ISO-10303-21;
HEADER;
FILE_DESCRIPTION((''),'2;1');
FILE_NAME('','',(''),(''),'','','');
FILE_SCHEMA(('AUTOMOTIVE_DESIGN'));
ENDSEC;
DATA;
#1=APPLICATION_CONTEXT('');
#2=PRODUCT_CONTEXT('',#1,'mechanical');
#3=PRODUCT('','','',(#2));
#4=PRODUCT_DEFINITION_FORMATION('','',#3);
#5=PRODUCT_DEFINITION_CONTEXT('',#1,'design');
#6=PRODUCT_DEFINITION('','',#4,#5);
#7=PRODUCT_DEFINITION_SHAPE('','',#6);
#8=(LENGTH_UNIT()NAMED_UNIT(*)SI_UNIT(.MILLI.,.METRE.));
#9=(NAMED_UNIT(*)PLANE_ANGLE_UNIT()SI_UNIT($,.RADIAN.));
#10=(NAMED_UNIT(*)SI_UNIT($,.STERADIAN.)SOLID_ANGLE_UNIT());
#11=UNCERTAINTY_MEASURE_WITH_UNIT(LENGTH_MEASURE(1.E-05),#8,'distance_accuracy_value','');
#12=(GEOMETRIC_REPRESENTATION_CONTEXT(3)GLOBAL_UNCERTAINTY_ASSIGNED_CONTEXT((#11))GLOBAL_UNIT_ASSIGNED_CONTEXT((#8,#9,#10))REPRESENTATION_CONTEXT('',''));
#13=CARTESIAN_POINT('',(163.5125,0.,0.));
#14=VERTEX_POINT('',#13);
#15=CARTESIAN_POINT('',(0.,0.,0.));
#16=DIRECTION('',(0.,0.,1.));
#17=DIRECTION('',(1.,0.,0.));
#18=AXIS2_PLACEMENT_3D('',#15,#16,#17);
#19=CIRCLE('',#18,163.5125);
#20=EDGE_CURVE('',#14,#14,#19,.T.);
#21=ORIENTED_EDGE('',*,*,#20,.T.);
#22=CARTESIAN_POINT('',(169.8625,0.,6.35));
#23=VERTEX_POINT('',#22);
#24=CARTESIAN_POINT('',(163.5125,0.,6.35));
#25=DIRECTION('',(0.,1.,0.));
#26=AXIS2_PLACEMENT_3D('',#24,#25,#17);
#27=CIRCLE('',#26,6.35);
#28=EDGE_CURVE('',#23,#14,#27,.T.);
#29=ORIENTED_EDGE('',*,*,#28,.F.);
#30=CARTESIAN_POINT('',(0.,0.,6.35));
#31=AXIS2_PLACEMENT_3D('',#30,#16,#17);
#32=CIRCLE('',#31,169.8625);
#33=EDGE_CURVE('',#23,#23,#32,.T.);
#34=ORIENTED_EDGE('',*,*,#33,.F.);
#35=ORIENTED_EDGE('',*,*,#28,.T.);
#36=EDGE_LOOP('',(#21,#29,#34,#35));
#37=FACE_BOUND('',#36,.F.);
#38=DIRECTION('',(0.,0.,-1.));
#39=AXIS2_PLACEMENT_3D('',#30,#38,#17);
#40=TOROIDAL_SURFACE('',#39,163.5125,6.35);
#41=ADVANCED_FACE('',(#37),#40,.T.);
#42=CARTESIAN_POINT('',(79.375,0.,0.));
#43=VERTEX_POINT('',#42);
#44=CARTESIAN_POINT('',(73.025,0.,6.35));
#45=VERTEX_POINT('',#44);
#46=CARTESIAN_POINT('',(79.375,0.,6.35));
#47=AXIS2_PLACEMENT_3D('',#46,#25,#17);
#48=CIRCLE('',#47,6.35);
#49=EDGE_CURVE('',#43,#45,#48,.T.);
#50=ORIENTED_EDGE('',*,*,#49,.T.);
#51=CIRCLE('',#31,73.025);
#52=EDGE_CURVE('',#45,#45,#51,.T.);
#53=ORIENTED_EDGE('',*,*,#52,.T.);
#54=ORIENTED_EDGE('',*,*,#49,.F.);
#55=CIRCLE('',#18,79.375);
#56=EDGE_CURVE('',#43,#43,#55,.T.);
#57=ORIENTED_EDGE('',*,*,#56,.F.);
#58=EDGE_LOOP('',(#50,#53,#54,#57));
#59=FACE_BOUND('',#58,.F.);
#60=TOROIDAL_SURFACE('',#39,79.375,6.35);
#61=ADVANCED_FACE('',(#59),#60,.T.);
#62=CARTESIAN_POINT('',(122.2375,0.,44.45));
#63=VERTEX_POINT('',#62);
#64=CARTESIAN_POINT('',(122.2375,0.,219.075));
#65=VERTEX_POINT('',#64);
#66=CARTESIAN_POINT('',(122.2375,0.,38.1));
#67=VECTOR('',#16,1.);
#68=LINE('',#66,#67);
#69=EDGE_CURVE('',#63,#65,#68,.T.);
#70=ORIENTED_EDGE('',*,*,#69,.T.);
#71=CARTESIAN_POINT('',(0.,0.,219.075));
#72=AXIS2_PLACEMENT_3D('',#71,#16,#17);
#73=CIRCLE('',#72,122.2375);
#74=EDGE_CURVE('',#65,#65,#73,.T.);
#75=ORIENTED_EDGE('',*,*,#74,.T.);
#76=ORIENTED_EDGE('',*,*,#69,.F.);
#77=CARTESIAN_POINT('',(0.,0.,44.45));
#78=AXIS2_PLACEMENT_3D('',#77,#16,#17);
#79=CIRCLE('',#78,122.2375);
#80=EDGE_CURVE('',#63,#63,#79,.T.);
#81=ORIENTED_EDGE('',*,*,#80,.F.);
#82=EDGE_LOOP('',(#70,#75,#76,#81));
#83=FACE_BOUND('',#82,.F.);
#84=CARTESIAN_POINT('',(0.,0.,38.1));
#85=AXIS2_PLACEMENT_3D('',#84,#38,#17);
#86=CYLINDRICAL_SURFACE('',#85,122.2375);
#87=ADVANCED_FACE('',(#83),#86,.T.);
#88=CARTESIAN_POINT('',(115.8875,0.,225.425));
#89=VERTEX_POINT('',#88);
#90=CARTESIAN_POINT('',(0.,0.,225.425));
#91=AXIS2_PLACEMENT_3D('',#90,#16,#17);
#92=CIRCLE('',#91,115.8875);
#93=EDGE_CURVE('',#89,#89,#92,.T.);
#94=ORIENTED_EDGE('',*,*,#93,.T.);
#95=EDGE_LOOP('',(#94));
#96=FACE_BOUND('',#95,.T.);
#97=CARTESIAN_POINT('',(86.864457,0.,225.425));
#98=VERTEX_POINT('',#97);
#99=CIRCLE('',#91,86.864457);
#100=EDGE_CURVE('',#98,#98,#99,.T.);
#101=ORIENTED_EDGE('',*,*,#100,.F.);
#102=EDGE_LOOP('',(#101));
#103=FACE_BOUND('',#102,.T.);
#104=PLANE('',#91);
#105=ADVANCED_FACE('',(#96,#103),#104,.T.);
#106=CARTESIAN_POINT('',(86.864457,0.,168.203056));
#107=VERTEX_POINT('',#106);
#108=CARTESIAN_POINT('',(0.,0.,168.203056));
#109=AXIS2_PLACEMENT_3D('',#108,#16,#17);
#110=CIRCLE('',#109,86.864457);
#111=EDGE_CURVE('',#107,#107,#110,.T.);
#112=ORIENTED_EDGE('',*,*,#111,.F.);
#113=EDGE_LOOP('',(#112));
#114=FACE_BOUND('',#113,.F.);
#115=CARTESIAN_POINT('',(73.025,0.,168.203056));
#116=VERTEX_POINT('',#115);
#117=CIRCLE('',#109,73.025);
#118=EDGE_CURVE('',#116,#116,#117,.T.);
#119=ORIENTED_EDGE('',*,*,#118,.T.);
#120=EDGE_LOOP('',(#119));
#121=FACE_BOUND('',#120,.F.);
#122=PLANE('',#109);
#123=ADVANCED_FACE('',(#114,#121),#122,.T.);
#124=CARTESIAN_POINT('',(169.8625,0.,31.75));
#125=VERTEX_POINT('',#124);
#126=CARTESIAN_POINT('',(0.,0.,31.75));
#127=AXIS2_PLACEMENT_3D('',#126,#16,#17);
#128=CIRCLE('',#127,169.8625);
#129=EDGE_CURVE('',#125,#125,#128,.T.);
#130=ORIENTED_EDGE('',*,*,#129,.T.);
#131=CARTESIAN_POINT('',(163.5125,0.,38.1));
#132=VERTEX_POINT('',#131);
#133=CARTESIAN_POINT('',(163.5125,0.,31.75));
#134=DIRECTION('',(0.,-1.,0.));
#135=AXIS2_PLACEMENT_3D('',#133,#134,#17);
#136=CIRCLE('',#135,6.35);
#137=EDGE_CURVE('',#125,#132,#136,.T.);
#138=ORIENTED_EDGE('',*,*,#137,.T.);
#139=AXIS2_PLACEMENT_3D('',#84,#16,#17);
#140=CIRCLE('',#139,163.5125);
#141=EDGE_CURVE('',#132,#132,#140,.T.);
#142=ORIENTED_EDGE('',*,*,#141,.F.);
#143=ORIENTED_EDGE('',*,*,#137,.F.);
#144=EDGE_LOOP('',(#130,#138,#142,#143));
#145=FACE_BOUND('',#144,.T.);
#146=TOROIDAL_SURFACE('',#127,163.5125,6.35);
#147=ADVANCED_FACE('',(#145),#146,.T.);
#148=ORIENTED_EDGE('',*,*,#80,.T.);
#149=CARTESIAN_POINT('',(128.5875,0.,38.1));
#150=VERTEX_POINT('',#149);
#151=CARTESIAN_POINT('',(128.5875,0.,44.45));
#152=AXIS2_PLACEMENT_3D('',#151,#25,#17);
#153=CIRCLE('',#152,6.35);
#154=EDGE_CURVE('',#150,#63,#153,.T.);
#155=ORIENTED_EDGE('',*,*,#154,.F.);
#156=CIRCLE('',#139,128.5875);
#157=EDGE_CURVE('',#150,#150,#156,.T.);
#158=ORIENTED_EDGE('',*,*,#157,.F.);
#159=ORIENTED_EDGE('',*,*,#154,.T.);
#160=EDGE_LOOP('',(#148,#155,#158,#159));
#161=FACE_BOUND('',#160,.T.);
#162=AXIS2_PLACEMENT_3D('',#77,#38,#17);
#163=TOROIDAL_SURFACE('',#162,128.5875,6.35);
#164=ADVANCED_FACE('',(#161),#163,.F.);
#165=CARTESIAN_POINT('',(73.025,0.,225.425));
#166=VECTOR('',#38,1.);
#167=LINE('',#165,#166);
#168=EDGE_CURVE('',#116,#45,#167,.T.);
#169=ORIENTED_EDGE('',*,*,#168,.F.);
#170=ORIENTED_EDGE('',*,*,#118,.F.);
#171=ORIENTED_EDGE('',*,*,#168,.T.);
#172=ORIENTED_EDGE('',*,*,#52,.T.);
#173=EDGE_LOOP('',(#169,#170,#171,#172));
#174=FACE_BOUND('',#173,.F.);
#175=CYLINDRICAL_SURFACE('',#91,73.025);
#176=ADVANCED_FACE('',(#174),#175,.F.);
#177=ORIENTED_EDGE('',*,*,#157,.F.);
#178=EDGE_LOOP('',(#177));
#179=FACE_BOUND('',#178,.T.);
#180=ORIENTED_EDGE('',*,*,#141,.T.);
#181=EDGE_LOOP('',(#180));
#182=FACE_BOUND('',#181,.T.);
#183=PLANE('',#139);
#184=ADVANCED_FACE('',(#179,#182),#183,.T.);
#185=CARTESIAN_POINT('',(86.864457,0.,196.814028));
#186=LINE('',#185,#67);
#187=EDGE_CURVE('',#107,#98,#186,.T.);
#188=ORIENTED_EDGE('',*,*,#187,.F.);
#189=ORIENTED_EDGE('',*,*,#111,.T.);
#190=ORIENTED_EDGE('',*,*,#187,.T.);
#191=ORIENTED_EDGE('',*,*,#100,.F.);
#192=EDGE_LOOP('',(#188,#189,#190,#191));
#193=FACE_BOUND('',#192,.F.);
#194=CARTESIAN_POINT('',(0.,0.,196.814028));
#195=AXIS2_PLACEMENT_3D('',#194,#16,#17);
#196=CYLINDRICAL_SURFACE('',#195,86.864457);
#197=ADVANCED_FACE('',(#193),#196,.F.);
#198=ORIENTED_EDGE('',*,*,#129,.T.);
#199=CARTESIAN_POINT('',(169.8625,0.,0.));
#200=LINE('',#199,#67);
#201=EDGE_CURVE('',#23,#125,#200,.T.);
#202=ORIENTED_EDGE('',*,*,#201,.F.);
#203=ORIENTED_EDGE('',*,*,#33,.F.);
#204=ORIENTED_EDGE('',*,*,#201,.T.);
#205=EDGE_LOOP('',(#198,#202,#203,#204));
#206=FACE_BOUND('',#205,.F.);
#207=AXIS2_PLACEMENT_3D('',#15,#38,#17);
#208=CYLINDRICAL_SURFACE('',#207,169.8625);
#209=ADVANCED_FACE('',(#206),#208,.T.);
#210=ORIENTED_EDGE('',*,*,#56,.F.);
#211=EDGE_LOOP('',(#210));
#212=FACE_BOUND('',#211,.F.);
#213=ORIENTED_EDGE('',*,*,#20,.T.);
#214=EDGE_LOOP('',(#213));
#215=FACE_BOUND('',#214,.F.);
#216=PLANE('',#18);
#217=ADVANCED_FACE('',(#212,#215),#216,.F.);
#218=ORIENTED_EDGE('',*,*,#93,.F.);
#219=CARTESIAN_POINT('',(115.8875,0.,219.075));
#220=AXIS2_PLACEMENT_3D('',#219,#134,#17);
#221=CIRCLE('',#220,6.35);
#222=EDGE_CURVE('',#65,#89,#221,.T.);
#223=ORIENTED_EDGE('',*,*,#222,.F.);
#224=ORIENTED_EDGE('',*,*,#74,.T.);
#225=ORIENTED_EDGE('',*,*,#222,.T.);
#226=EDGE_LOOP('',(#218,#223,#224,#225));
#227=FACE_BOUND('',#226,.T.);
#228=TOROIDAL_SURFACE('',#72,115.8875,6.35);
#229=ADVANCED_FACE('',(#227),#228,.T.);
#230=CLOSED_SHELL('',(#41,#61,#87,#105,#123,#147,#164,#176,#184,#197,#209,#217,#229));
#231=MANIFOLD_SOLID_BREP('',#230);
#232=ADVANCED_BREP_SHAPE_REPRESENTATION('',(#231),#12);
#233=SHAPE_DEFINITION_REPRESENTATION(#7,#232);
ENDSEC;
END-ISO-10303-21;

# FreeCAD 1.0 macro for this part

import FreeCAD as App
import Part
import Sketcher
from FreeCAD import Vector
Q = App.Units.Quantity


def edges_at(feature, points):
    """Names of the edges that pass closest to the given points."""
    edges = feature.Shape.Edges
    near = lambda p: min(range(len(edges)), key=lambda i: edges[i].distToShape(Part.Vertex(*p))[0])
    return sorted({f"Edge{near(p) + 1}" for p in points})

doc = App.newDocument("Part")
body = doc.addObject("PartDesign::Body", "Body")

# Sketch on XY plane
sketch1 = body.newObject("Sketcher::SketchObject", "Sketch")
sketch1.AttachmentSupport = (doc.getObject("XY_Plane"), [""])
sketch1.MapMode = "FlatFace"
sketch1.addGeometry(Part.Circle(Vector(0, 0, 0), Vector(0, 0, 1), 170), False)
sketch1.addConstraint([
    Sketcher.Constraint("Coincident", 0, 3, -1, 1),
    Sketcher.Constraint("Diameter", 0, Q("13.375 in")),
])
pad1 = body.newObject("PartDesign::Pad", "Pad")
pad1.Profile = sketch1
pad1.Length = Q("1.5 in")

# Sketch on XY plane
sketch2 = body.newObject("Sketcher::SketchObject", "Sketch001")
sketch2.AttachmentSupport = (doc.getObject("XY_Plane"), [""])
sketch2.MapMode = "FlatFace"
sketch2.AttachmentOffset = App.Placement(Vector(0, 0, 1.5 * 25.4), App.Rotation())
sketch2.addGeometry(Part.Circle(Vector(0, 0, 0), Vector(0, 0, 1), 122), False)
sketch2.addConstraint([
    Sketcher.Constraint("Coincident", 0, 3, -1, 1),
    Sketcher.Constraint("Diameter", 0, Q("9.625 in")),
])
pad2 = body.newObject("PartDesign::Pad", "Pad001")
pad2.Profile = sketch2
pad2.Length = Q("7.375 in")

# Sketch on XY plane
sketch3 = body.newObject("Sketcher::SketchObject", "Sketch002")
sketch3.AttachmentSupport = (doc.getObject("XY_Plane"), [""])
sketch3.MapMode = "FlatFace"
sketch3.AttachmentOffset = App.Placement(Vector(0, 0, 8.875 * 25.4), App.Rotation())
sketch3.addGeometry(Part.Circle(Vector(0, 0, 0), Vector(0, 0, 1), 73), False)
sketch3.addConstraint([
    Sketcher.Constraint("Coincident", 0, 3, -1, 1),
    Sketcher.Constraint("Diameter", 0, Q("5.75 in")),
])
pocket1 = body.newObject("PartDesign::Pocket", "Pocket")
pocket1.Profile = sketch3
pocket1.Type = "ThroughAll"
doc.recompute()

fillet = body.newObject("PartDesign::Fillet", "Fillet")
fillet.Base = (pocket1, edges_at(pocket1, [
    (-122.237, 0, 225.425),
    (-73.025, 0, 225.425),
    (-122.237, 0, 38.1),
    (-169.863, 0, 38.1),
    (-169.863, 0, 0),
    (-73.025, 0, 0),
]))
fillet.Radius = Q("0.25 in")

# Sketch on XZ plane
sketch4 = body.newObject("Sketcher::SketchObject", "Sketch003")
sketch4.AttachmentSupport = (doc.getObject("XZ_Plane"), [""])
sketch4.MapMode = "FlatFace"
sketch4.addGeometry([
    Part.LineSegment(Vector(73, 225, 0), Vector(73, 168, 0)),
    Part.LineSegment(Vector(73, 168, 0), Vector(87, 168, 0)),
    Part.LineSegment(Vector(87, 168, 0), Vector(87, 225, 0)),
    Part.LineSegment(Vector(87, 225, 0), Vector(73, 225, 0)),
], False)
sketch4.addConstraint([
    Sketcher.Constraint("Coincident", 0, 2, 1, 1),
    Sketcher.Constraint("Coincident", 1, 2, 2, 1),
    Sketcher.Constraint("Coincident", 2, 2, 3, 1),
    Sketcher.Constraint("Coincident", 3, 2, 0, 1),
    Sketcher.Constraint("Vertical", 0),
    Sketcher.Constraint("Horizontal", 1),
    Sketcher.Constraint("Vertical", 2),
    Sketcher.Constraint("Horizontal", 3),
    Sketcher.Constraint("DistanceX", -1, 1, 0, 2, Q("2.875 in")),
    Sketcher.Constraint("DistanceY", -1, 1, 2, 2, Q("8.875 in")),
    Sketcher.Constraint("DistanceX", 1, 1, 1, 2, 13.839457),
    Sketcher.Constraint("DistanceY", 0, 2, 0, 1, 57.221944),
])
groove = body.newObject("PartDesign::Groove", "Groove")
groove.Profile = sketch4
groove.ReferenceAxis = (sketch4, ["V_Axis"])
groove.Angle = 360

doc.recompute()
